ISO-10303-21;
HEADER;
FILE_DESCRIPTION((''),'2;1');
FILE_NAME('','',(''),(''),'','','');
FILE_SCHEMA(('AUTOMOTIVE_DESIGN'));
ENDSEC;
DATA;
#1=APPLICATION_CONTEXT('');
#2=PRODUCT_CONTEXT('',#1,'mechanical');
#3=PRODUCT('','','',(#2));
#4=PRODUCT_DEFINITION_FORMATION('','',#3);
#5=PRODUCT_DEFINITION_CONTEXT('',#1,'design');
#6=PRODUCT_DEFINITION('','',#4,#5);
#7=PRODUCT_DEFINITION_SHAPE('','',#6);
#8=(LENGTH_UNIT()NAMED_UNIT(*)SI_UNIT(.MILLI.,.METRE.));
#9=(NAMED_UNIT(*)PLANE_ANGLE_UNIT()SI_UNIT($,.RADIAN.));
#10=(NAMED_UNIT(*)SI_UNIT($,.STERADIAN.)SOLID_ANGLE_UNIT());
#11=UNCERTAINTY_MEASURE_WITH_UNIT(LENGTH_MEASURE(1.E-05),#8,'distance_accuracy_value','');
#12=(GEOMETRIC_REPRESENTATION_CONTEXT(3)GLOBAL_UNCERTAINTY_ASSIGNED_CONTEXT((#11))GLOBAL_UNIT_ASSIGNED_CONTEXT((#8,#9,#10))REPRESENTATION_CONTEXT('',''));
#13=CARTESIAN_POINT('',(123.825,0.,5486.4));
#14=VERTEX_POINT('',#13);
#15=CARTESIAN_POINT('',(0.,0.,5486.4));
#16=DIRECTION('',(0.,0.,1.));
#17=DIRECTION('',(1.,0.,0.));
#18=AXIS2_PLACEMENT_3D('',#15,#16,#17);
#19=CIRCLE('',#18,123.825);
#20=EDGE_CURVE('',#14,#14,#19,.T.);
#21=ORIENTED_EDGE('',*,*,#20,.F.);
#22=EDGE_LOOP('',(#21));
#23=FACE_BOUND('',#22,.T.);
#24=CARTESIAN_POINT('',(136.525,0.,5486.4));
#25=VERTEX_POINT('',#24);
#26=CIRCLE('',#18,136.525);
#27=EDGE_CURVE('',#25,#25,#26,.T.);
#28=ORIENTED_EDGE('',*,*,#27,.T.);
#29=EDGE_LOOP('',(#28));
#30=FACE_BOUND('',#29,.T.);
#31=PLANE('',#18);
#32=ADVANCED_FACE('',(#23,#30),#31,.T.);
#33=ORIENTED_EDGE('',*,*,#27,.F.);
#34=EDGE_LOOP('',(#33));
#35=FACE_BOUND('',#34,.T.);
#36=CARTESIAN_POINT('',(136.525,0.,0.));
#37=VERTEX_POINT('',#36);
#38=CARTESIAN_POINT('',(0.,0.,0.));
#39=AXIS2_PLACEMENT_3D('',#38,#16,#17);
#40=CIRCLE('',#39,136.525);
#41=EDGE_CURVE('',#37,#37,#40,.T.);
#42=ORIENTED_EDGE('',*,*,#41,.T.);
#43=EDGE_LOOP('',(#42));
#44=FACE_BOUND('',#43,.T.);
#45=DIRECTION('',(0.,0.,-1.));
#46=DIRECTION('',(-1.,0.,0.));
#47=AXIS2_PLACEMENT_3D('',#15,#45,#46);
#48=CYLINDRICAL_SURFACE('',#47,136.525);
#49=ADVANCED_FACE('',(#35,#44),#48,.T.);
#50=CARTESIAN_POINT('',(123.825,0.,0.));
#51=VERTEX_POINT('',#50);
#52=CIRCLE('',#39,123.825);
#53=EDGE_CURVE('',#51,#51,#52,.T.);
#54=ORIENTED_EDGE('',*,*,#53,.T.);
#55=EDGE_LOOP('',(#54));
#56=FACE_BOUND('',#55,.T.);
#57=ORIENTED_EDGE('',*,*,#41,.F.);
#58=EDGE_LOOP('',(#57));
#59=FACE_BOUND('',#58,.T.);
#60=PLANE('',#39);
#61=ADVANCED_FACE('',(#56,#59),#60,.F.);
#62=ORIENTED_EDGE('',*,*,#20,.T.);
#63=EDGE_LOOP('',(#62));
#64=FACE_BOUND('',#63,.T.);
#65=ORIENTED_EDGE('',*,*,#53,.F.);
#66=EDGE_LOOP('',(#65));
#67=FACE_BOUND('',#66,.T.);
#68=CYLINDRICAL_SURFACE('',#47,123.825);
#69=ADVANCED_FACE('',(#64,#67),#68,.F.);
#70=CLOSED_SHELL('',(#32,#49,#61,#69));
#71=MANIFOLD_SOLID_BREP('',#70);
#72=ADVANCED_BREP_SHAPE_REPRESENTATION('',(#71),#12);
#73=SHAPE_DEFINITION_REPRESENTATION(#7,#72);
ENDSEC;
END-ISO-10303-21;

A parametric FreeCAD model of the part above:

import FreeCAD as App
import Part
import Sketcher
from FreeCAD import Vector
Q = App.Units.Quantity

doc = App.newDocument("Part")
body = doc.addObject("PartDesign::Body", "Body")

sketch1 = body.newObject("Sketcher::SketchObject", "Sketch")
sketch1.AttachmentSupport = (doc.getObject("XY_Plane"), [""])
sketch1.MapMode = "FlatFace"
sketch1.addGeometry([
    Part.Circle(Vector(0, 0, 0), Vector(0, 0, 1), 137),
    Part.Circle(Vector(0, 0, 0), Vector(0, 0, 1), 124),
], False)
sketch1.addConstraint([
    Sketcher.Constraint("Coincident", 0, 3, -1, 1),
    Sketcher.Constraint("Coincident", 1, 3, -1, 1),
    Sketcher.Constraint("Diameter", 0, Q("10.75 in")),
    Sketcher.Constraint("Diameter", 1, Q("9.75 in")),
])
pad1 = body.newObject("PartDesign::Pad", "Pad")
pad1.Profile = sketch1
pad1.Length = Q("216 in")

doc.recompute()
